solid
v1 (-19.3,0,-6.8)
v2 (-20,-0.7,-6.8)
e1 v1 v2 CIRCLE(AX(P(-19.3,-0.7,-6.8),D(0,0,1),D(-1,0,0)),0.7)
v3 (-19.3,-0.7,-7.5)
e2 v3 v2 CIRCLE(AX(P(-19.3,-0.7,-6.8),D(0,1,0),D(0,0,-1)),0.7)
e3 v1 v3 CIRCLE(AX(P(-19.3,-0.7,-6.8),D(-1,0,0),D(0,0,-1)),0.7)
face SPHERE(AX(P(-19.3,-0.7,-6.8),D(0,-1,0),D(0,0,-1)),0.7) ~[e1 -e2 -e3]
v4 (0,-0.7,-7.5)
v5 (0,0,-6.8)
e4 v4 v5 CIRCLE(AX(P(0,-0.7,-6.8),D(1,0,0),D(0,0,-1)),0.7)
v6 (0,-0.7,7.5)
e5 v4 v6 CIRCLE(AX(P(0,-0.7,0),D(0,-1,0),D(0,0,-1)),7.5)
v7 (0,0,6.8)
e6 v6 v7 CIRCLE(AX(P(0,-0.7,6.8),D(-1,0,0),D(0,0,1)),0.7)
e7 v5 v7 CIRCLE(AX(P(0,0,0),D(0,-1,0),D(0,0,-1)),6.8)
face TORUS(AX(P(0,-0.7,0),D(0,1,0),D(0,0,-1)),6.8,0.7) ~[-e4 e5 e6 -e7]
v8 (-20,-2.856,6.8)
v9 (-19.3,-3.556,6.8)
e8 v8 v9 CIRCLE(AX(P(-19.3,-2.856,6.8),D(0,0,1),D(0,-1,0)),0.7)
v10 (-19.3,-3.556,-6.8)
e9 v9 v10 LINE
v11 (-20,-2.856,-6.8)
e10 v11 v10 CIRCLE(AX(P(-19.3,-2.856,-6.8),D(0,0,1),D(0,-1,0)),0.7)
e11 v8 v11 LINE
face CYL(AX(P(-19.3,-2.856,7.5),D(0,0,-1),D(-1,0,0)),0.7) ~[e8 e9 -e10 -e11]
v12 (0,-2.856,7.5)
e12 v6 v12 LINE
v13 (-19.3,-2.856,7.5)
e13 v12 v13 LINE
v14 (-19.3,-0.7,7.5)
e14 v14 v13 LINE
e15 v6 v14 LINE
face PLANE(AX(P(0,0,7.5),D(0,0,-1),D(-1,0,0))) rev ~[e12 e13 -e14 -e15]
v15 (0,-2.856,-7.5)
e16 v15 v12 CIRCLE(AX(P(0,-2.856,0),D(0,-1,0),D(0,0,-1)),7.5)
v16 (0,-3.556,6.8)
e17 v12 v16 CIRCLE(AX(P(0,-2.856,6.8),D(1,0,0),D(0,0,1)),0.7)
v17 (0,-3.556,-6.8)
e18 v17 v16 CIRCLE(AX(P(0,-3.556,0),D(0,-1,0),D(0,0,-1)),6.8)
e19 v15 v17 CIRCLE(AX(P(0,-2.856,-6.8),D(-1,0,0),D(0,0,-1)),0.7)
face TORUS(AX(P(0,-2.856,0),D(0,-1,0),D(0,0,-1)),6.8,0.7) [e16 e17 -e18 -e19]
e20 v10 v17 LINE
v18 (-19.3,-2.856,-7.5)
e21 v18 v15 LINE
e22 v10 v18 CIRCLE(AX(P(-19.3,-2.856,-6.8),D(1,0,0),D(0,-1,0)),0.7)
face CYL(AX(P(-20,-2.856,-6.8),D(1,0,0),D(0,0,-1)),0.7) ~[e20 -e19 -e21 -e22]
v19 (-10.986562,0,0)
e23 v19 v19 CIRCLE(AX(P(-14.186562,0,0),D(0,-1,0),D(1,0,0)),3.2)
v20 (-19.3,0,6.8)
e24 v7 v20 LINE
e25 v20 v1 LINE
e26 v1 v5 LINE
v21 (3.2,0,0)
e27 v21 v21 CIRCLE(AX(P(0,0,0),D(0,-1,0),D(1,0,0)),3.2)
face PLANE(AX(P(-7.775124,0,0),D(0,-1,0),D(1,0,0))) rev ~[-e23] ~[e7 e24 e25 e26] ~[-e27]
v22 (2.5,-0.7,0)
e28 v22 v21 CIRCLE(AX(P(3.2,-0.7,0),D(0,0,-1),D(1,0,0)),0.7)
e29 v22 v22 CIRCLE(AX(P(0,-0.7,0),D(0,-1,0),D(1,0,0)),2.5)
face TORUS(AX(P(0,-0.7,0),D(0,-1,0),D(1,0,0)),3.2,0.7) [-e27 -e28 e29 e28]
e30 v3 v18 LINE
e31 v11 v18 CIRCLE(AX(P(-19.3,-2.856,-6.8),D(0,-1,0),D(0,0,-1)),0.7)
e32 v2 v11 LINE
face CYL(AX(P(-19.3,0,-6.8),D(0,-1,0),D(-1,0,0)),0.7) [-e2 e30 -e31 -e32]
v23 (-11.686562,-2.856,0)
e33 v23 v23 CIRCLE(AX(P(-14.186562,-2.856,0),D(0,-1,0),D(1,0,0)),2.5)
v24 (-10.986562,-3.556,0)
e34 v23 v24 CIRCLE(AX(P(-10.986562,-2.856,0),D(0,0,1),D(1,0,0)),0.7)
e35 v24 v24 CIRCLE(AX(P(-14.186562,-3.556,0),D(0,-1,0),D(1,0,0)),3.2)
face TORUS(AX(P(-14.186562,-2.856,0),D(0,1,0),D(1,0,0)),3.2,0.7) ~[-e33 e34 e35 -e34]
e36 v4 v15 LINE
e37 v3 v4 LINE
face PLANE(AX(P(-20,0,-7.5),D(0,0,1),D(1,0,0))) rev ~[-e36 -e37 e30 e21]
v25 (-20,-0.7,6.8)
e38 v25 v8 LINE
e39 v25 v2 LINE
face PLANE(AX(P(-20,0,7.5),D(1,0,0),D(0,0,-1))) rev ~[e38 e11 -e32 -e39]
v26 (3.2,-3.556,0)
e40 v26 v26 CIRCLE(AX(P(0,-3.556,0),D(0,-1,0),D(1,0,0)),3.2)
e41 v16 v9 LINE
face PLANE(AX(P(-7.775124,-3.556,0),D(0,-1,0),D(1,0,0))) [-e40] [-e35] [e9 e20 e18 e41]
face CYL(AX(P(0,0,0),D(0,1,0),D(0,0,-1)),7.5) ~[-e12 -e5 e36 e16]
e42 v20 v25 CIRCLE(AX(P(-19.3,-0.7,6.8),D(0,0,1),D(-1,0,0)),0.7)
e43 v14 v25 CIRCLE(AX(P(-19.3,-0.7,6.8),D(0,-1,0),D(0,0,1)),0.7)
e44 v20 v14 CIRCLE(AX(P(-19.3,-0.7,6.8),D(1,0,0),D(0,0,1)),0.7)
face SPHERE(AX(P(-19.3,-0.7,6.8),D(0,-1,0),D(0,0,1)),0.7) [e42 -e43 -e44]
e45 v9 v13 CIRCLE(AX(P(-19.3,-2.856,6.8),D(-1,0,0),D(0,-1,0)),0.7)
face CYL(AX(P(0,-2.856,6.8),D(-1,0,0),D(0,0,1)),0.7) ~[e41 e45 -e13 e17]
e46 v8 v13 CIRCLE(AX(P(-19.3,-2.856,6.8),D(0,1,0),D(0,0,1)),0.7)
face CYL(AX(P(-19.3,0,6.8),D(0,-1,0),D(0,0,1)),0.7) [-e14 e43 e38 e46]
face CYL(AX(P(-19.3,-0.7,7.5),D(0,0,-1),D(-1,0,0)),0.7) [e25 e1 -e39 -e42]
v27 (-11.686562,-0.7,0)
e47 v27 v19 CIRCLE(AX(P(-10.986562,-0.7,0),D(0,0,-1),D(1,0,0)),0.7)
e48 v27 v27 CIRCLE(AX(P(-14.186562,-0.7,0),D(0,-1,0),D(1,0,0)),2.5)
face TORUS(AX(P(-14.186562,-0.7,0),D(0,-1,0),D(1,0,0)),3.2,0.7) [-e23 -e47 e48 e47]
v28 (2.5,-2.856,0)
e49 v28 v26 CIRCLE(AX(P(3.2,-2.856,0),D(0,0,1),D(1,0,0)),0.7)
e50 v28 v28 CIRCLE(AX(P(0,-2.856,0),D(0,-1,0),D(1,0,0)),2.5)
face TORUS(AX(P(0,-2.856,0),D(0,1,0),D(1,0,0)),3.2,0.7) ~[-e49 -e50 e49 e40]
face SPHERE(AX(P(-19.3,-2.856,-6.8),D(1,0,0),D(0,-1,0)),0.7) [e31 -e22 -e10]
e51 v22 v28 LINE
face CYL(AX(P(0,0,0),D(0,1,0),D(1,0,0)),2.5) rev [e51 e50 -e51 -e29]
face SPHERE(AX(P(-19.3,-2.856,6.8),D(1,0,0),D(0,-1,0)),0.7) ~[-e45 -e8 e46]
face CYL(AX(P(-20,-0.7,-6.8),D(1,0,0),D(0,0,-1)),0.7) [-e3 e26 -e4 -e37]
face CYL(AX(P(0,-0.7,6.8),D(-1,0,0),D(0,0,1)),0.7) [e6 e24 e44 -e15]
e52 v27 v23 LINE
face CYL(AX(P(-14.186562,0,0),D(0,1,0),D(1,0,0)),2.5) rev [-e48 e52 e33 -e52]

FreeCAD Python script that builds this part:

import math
import FreeCAD as App
import Part
import Sketcher
Q = App.Units.Quantity

doc = App.newDocument("Part")
body = doc.addObject("PartDesign::Body", "Body")

# Sketch on XZ plane
sketch1 = body.newObject("Sketcher::SketchObject", "Sketch")
sketch1.AttachmentSupport = (doc.getObject("XZ_Plane"), [""])
sketch1.MapMode = "FlatFace"
sketch1.addGeometry([
    Part.LineSegment(App.Vector(0, 7.5, 0), App.Vector(-20, 7.5, 0)),  # 0
    Part.LineSegment(App.Vector(-20, 7.5, 0), App.Vector(-20, -7.5, 0)),  # 1
    Part.LineSegment(App.Vector(-20, -7.5, 0), App.Vector(0, -7.5, 0)),  # 2
    Part.ArcOfCircle(Part.Circle(App.Vector(0, 0, 0), App.Vector(0, 0, 1), 7.5), math.radians(-90), math.radians(90)),  # 3
    Part.Circle(App.Vector(-14.2, 0, 0), App.Vector(0, 0, 1), 2.5),  # 4
    Part.Circle(App.Vector(0, 0, 0), App.Vector(0, 0, 1), 2.5),  # 5
], False)
sketch1.addConstraint([
    Sketcher.Constraint("Coincident", 0, 2, 1, 1),
    Sketcher.Constraint("Coincident", 1, 2, 2, 1),
    Sketcher.Constraint("Tangent", 2, 2, 3, 1),
    Sketcher.Constraint("Tangent", 3, 2, 0, 1),
    Sketcher.Constraint("Horizontal", 0),
    Sketcher.Constraint("Vertical", 1),
    Sketcher.Constraint("Horizontal", 2),
    Sketcher.Constraint("Coincident", 3, 3, -1, 1),
    Sketcher.Constraint("Coincident", 5, 3, -1, 1),
    Sketcher.Constraint("Equal", 4, 5),
    Sketcher.Constraint("PointOnObject", 4, 3, -1),
    Sketcher.Constraint("Diameter", 4, Q("5 mm")),
    Sketcher.Constraint("Radius", 3, Q("7.5 mm")),
    Sketcher.Constraint("DistanceX", 0, 2, 0, 1, Q("20 mm")),
    Sketcher.Constraint("DistanceX", 4, 3, -1, 1, Q("14.186562 mm")),
])
pad1 = body.newObject("PartDesign::Pad", "Pad")
pad1.Profile = sketch1
pad1.Length = 3.556
doc.recompute()

fillet = body.newObject("PartDesign::Fillet", "Fillet")
fillet.Base = (pad1, ["Edge1"])
fillet.UseAllEdges = True
fillet.Radius = 0.7

doc.recompute()
